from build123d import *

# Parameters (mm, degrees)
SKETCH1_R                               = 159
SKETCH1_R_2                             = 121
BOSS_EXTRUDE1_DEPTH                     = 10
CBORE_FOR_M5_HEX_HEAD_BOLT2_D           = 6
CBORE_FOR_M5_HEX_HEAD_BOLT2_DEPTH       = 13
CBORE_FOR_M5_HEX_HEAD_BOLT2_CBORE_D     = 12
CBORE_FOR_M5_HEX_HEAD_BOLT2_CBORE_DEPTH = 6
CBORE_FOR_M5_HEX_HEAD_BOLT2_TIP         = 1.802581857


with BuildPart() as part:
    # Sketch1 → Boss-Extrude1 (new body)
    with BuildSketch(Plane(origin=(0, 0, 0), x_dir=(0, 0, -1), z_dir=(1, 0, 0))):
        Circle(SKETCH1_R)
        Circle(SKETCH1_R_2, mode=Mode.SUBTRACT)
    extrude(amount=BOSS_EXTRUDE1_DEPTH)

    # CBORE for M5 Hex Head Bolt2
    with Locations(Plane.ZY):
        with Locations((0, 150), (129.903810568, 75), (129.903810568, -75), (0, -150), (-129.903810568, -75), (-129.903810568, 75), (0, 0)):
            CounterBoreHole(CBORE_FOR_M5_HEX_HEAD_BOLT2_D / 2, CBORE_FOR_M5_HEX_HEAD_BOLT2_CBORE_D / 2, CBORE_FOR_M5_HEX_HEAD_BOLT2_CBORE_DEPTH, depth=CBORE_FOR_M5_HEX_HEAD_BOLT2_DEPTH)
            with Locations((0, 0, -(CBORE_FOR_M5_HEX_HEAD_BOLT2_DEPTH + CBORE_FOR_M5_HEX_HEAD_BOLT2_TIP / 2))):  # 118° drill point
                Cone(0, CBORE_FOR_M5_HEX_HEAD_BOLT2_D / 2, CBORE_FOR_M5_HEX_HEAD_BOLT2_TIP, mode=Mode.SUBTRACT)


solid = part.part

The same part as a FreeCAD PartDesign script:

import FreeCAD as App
import Part
import Sketcher
from FreeCAD import Vector

doc = App.newDocument("Part")
body = doc.addObject("PartDesign::Body", "Body")

# Sketch on YZ plane
sketch1 = body.newObject("Sketcher::SketchObject", "Sketch")
sketch1.AttachmentSupport = (doc.getObject("YZ_Plane"), [""])
sketch1.MapMode = "FlatFace"
sketch1.addGeometry([
    Part.Circle(Vector(0, 0, 0), Vector(0, 0, 1), 159),
    Part.Circle(Vector(0, 0, 0), Vector(0, 0, 1), 121),
], False)
sketch1.addConstraint([
    Sketcher.Constraint("Coincident", 0, 3, -1, 1),
    Sketcher.Constraint("Coincident", 1, 3, -1, 1),
    Sketcher.Constraint("Diameter", 0, 318.0),
    Sketcher.Constraint("Diameter", 1, 242.0),
])
pad1 = body.newObject("PartDesign::Pad", "Pad")
pad1.Profile = sketch1
pad1.Length = 10

# Sketch on YZ plane
sketch2 = body.newObject("Sketcher::SketchObject", "Sketch001")
sketch2.AttachmentSupport = (doc.getObject("YZ_Plane"), [""])
sketch2.MapMode = "FlatFace"
sketch2.addGeometry([
    Part.Circle(Vector(150, 0, 0), Vector(0, 0, 1), 3),  # 0
    Part.Circle(Vector(75, 129.9, 0), Vector(0, 0, 1), 3),  # 1
    Part.Circle(Vector(-75, 129.9, 0), Vector(0, 0, 1), 3),  # 2
    Part.Circle(Vector(-150, 0, 0), Vector(0, 0, 1), 3),  # 3
    Part.Circle(Vector(-75, -129.9, 0), Vector(0, 0, 1), 3),  # 4
    Part.Circle(Vector(75, -129.9, 0), Vector(0, 0, 1), 3),  # 5
    Part.Circle(Vector(0, 0, 0), Vector(0, 0, 1), 3),  # 6
], False)
sketch2.addConstraint([
    Sketcher.Constraint("Coincident", 6, 3, -1, 1),
    Sketcher.Constraint("Equal", 0, 1),
    Sketcher.Constraint("Equal", 1, 2),
    Sketcher.Constraint("Equal", 2, 3),
    Sketcher.Constraint("Equal", 3, 4),
    Sketcher.Constraint("Equal", 4, 5),
    Sketcher.Constraint("Equal", 5, 6),
    Sketcher.Constraint("Symmetric", 0, 3, 3, 3, -1, 1),
    Sketcher.Constraint("Symmetric", 1, 3, 4, 3, -1, 1),
    Sketcher.Constraint("Symmetric", 2, 3, 5, 3, -1, 1),
    Sketcher.Constraint("Symmetric", 1, 3, 2, 3, -2),
    Sketcher.Constraint("PointOnObject", 0, 3, -1),
    Sketcher.Constraint("Diameter", 0, 6.0),
    Sketcher.Constraint("DistanceX", -1, 1, 0, 3, 150.0),
    Sketcher.Constraint("DistanceX", -1, 1, 1, 3, 75.0),
    Sketcher.Constraint("DistanceY", -1, 1, 1, 3, 129.903811),
])
doc.recompute()
hole = body.newObject("PartDesign::Hole", "Hole")
hole.Profile = sketch2
hole.ThreadType = "None"
hole.Diameter = 6
hole.DepthType = "Dimension"
hole.Depth = 13
hole.DrillPoint = "Angled"
hole.DrillPointAngle = 118
hole.HoleCutType = "Counterbore"
hole.HoleCutDiameter = 12
hole.HoleCutDepth = 6
hole.Reversed = True

doc.recompute()
